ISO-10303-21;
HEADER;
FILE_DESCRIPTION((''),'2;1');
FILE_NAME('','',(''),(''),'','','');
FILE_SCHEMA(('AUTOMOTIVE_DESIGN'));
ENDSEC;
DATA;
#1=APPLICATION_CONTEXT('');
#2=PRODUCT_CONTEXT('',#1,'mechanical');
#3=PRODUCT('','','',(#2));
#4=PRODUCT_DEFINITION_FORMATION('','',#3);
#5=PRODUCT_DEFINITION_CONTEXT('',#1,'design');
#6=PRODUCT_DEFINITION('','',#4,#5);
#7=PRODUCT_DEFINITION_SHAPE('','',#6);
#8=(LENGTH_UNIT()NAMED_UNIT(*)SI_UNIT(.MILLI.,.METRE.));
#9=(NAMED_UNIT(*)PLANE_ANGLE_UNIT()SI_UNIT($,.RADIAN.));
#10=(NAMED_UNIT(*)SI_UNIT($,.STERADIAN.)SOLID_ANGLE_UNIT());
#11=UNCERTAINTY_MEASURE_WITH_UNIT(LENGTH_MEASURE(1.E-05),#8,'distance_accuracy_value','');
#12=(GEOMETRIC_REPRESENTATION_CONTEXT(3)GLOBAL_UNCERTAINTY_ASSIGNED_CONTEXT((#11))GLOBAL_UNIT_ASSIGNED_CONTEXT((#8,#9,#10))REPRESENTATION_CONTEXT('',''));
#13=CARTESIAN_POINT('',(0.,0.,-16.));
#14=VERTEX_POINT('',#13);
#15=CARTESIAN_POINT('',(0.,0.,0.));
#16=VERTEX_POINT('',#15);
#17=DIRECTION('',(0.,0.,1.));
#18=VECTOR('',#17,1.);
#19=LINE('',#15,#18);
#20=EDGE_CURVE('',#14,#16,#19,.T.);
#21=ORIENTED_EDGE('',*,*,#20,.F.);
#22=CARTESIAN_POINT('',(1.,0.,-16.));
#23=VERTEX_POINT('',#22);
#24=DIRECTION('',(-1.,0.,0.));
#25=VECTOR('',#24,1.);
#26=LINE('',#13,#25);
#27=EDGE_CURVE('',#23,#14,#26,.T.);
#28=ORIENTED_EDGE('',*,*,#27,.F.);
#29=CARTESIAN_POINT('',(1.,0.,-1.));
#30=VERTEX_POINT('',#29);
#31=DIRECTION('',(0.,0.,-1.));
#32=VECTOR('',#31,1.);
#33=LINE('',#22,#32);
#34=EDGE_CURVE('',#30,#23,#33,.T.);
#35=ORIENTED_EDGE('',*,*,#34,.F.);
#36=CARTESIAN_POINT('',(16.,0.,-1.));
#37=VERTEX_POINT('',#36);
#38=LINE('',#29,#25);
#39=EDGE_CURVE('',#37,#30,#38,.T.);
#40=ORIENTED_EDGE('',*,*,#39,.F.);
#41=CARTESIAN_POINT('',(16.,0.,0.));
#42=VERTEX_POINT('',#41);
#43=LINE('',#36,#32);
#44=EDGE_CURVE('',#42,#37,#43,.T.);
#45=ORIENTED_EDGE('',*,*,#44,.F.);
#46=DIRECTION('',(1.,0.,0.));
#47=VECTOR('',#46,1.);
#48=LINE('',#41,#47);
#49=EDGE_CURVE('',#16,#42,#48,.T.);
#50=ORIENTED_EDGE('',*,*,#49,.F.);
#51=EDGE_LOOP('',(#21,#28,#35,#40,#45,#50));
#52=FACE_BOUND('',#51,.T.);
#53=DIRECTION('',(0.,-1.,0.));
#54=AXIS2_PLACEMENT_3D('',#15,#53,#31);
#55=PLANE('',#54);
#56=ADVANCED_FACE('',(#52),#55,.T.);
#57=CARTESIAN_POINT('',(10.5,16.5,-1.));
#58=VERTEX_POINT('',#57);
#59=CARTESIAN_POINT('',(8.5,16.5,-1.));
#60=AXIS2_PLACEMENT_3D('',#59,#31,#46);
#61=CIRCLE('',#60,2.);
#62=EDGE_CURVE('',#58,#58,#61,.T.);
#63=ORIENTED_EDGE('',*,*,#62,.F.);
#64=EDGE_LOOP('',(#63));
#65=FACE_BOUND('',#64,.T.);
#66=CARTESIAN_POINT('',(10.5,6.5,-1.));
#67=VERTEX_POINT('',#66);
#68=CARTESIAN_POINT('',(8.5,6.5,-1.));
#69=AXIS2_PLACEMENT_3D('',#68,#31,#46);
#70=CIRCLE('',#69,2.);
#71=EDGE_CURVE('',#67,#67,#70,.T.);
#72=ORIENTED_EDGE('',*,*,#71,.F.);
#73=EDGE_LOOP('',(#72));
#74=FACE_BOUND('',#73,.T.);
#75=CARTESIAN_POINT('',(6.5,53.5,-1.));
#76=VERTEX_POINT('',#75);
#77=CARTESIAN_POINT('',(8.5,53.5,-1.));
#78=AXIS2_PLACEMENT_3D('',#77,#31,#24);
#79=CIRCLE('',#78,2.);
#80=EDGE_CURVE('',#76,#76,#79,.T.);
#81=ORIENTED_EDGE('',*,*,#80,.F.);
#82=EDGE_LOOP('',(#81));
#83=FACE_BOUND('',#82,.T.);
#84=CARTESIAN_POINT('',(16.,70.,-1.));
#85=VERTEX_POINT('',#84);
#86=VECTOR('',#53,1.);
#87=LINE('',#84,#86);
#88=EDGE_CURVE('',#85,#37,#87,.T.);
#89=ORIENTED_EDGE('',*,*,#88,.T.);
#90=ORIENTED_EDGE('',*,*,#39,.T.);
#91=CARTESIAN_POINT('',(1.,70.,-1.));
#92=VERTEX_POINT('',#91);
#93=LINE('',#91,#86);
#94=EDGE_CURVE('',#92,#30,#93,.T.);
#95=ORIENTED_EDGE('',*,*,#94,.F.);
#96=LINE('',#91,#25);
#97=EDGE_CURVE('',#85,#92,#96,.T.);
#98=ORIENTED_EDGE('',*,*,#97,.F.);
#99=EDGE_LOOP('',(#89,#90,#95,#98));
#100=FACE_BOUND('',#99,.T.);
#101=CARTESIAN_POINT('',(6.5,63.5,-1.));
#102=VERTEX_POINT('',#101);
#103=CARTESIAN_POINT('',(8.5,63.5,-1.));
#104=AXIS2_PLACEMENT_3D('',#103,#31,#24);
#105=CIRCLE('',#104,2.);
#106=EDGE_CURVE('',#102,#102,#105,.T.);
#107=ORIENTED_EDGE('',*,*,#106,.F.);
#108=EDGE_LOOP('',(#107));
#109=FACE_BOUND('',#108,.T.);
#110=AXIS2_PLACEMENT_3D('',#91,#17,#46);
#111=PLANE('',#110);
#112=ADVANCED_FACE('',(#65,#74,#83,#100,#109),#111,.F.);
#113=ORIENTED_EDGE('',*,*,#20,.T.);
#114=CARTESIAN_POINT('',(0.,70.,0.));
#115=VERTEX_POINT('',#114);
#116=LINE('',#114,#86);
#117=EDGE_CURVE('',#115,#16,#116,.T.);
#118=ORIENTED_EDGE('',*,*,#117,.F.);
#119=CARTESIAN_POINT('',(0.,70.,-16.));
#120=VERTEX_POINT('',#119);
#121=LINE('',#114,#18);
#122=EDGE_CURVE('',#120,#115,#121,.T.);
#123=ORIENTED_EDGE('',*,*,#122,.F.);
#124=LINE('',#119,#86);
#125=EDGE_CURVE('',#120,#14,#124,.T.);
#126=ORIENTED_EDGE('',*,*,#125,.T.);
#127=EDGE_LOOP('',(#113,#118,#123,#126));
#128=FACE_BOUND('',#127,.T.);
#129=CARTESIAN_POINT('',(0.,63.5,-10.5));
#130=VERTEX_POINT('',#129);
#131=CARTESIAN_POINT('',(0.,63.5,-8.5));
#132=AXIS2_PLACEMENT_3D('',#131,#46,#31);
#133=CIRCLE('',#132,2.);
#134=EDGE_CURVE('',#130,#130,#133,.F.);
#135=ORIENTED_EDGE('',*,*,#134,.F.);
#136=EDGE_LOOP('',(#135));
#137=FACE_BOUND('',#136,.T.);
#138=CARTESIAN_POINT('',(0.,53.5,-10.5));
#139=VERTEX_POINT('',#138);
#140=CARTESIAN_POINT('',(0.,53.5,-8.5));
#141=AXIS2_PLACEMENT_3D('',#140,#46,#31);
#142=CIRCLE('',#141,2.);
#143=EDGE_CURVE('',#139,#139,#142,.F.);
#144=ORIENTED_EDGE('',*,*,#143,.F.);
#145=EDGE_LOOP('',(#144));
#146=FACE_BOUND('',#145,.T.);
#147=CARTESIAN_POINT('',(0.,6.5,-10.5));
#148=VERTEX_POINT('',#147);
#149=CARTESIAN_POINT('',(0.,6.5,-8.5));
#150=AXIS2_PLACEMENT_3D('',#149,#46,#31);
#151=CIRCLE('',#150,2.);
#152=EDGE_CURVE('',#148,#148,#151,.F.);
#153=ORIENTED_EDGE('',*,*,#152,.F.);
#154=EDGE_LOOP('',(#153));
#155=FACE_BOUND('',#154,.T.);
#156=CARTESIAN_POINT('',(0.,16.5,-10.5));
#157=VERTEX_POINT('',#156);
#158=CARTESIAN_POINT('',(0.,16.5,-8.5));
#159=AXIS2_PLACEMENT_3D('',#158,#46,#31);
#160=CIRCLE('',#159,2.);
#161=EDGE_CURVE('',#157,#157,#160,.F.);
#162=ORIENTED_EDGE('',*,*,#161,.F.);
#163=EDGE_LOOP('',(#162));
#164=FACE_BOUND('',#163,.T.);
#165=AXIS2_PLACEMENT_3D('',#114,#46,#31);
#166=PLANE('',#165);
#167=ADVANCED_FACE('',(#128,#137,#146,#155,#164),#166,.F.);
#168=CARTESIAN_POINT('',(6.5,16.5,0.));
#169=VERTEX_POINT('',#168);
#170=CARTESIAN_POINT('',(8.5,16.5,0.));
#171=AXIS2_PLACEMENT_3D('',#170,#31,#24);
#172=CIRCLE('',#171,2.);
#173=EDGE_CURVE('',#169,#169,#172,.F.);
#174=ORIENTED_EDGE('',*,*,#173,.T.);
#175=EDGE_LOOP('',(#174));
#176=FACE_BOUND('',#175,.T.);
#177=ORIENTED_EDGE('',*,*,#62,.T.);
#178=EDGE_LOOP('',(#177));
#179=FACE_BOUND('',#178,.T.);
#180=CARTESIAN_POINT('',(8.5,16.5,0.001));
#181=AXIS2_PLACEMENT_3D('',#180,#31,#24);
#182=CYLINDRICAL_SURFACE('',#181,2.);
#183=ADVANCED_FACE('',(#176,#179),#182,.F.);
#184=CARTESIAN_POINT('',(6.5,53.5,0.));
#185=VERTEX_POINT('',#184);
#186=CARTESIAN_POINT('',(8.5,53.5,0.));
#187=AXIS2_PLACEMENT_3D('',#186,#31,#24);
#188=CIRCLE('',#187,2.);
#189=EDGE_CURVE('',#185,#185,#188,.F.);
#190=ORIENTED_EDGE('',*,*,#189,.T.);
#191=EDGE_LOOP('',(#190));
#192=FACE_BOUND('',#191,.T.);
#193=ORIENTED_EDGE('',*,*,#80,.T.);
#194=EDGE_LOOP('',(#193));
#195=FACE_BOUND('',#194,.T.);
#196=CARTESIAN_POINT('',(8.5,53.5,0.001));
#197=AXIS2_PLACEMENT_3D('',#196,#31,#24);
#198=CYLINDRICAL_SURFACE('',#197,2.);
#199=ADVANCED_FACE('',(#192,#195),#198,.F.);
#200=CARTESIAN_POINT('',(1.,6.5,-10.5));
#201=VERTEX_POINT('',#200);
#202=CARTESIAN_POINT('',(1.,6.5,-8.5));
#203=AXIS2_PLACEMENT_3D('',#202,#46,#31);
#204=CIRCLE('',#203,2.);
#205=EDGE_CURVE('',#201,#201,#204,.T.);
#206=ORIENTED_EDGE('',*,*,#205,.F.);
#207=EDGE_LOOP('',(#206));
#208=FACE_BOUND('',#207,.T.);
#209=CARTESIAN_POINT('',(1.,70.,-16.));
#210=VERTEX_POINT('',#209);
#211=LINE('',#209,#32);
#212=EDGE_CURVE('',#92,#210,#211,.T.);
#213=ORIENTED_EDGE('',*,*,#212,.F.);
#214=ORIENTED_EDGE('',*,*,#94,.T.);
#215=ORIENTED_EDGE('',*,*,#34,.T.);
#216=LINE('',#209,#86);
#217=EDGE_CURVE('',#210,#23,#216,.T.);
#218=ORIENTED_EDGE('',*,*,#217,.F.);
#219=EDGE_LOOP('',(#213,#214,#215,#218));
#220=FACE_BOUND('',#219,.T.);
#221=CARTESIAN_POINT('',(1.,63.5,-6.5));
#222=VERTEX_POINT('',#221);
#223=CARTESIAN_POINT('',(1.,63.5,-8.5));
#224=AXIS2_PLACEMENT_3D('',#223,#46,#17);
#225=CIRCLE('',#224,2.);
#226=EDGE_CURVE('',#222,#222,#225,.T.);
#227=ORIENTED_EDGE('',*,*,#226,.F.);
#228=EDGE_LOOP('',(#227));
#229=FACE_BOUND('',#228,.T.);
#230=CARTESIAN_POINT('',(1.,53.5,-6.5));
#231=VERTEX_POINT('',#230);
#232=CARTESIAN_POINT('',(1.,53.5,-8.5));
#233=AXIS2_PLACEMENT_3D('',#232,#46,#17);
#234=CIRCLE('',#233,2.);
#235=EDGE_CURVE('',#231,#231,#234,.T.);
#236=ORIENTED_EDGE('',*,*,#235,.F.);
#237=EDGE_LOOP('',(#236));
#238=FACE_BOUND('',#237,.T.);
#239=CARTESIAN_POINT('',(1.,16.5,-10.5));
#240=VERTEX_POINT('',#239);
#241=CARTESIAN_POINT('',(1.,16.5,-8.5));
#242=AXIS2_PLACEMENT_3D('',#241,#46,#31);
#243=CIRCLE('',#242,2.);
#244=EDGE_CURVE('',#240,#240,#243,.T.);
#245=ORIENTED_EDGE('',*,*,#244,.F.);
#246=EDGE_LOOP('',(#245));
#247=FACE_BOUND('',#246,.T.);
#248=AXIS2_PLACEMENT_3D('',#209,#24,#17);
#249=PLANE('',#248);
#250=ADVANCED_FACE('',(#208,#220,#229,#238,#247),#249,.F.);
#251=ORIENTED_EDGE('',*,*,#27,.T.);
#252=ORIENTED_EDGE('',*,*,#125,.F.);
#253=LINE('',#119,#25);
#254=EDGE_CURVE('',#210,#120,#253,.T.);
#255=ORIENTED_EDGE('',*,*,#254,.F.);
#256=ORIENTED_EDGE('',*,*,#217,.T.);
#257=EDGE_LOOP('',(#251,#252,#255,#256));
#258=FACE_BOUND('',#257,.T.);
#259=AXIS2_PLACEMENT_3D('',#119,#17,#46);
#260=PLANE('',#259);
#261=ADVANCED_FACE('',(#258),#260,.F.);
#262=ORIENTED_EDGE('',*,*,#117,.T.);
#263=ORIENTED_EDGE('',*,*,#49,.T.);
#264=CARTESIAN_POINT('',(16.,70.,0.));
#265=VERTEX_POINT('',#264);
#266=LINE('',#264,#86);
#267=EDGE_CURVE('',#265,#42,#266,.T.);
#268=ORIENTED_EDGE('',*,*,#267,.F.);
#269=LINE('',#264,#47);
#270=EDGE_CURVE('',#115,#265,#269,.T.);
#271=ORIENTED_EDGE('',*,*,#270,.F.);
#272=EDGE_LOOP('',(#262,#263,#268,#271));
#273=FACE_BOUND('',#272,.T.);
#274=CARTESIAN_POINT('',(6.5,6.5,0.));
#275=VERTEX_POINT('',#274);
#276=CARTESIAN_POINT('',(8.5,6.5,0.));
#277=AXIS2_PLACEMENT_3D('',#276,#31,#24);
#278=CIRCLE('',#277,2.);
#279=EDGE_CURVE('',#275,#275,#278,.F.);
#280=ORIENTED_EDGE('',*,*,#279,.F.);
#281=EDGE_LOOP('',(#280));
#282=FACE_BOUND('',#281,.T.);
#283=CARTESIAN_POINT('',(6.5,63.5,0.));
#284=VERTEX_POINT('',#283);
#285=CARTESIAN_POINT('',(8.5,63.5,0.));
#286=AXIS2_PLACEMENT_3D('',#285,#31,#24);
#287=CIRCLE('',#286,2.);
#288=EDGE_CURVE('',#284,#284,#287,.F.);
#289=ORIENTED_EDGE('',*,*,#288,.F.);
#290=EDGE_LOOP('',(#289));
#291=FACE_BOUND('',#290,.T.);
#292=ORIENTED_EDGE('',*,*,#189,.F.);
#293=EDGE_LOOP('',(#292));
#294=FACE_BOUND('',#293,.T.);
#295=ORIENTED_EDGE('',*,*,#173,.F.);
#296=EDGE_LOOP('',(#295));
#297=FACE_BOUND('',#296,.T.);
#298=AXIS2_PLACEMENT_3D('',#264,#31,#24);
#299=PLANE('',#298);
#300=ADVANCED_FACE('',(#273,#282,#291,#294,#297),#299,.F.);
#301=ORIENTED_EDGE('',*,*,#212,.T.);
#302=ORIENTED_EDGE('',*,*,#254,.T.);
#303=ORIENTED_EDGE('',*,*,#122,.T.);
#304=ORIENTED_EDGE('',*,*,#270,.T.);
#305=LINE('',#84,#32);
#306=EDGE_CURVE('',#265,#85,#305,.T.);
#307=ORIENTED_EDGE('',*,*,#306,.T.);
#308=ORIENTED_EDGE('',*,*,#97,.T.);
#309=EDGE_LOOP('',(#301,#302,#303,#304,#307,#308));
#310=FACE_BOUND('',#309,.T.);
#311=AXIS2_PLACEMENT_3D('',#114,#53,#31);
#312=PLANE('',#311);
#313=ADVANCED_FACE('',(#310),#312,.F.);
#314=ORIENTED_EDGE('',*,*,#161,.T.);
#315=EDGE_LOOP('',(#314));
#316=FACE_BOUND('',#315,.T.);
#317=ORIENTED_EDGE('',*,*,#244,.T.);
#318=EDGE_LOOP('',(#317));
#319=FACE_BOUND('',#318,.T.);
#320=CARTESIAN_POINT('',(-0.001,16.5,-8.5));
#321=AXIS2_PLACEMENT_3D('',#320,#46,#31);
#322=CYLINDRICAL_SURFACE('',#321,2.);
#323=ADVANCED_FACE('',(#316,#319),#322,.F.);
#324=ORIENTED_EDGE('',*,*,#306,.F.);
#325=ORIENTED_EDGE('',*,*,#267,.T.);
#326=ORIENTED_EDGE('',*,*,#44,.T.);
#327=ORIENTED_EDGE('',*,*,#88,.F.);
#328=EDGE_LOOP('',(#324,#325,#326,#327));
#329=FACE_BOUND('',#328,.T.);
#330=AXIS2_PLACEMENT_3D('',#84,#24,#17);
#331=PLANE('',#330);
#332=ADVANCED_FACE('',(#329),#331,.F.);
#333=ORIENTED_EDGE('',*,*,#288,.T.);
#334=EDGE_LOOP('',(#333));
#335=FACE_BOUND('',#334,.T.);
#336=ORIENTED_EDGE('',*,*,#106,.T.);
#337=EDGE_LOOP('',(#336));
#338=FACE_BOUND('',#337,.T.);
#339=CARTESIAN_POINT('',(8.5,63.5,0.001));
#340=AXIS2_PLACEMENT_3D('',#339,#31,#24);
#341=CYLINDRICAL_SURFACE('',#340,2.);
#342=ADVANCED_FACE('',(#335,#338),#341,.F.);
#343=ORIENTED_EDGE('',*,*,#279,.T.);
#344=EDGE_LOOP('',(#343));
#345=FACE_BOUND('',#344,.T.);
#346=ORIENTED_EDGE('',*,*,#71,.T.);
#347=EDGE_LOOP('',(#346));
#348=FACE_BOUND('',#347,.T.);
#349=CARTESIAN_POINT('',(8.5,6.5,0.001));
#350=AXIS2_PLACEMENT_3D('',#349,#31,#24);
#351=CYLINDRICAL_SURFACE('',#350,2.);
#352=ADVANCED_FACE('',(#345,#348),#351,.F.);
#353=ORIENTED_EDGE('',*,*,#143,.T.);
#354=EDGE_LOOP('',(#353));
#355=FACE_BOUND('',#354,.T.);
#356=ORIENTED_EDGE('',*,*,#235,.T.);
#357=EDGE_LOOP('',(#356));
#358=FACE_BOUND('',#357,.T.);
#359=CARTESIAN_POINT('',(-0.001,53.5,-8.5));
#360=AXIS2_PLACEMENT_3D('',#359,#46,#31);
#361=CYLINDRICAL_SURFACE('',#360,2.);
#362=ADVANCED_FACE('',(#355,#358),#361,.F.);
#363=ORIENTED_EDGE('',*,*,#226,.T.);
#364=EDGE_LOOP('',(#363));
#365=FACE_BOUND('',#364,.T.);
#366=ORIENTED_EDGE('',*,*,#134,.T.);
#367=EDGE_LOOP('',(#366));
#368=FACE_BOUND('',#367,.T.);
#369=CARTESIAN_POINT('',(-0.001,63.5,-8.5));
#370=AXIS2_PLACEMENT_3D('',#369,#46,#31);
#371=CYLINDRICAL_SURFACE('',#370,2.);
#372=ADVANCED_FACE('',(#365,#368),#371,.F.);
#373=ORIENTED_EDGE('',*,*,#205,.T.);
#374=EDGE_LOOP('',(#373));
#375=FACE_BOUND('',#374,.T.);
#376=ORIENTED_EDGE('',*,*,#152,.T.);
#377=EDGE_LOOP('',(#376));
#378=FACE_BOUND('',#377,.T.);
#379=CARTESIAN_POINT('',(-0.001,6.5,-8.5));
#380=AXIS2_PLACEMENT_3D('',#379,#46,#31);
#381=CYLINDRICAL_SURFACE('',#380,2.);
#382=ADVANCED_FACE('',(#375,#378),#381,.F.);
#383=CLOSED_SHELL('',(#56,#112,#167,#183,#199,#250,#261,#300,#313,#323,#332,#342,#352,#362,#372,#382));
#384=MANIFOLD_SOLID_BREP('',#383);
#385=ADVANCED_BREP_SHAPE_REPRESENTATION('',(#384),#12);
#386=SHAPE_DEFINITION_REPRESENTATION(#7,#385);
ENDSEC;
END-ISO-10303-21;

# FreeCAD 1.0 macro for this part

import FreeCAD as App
import Part
import Sketcher
Q = App.Units.Quantity

doc = App.newDocument("Part")
body = doc.addObject("PartDesign::Body", "Body")

# Sketch on XZ plane
sketch1 = doc.addObject("Sketcher::SketchObject", "Sketch")
body.addObject(sketch1)
sketch1.AttachmentSupport = (doc.XZ_Plane, [""])
sketch1.MapMode = "FlatFace"
sketch1.addGeometry(Part.LineSegment(App.Vector(0, -16, 0), App.Vector(0, 0, 0)), False)
sketch1.addGeometry(Part.LineSegment(App.Vector(0, 0, 0), App.Vector(16, 0, 0)), False)
sketch1.addGeometry(Part.LineSegment(App.Vector(16, 0, 0), App.Vector(16, -1, 0)), False)
sketch1.addGeometry(Part.LineSegment(App.Vector(16, -1, 0), App.Vector(1, -1, 0)), False)
sketch1.addGeometry(Part.LineSegment(App.Vector(1, -1, 0), App.Vector(1, -16, 0)), False)
sketch1.addGeometry(Part.LineSegment(App.Vector(1, -16, 0), App.Vector(0, -16, 0)), False)
sketch1.addConstraint(Sketcher.Constraint("Coincident", 0, 2, 1, 1))
sketch1.addConstraint(Sketcher.Constraint("Coincident", 1, 2, 2, 1))
sketch1.addConstraint(Sketcher.Constraint("Coincident", 2, 2, 3, 1))
sketch1.addConstraint(Sketcher.Constraint("Coincident", 3, 2, 4, 1))
sketch1.addConstraint(Sketcher.Constraint("Coincident", 4, 2, 5, 1))
sketch1.addConstraint(Sketcher.Constraint("Coincident", 5, 2, 0, 1))
sketch1.addConstraint(Sketcher.Constraint("Vertical", 0))
sketch1.addConstraint(Sketcher.Constraint("Horizontal", 1))
sketch1.addConstraint(Sketcher.Constraint("Vertical", 2))
sketch1.addConstraint(Sketcher.Constraint("Horizontal", 3))
sketch1.addConstraint(Sketcher.Constraint("Vertical", 4))
sketch1.addConstraint(Sketcher.Constraint("Horizontal", 5))
sketch1.addConstraint(Sketcher.Constraint("Coincident", 0, 2, -1, 1))
sketch1.addConstraint(Sketcher.Constraint("Equal", 1, 0))
sketch1.addConstraint(Sketcher.Constraint("Equal", 5, 2))
sketch1.addConstraint(Sketcher.Constraint("DistanceX", 1, 1, 1, 2, Q("16 mm")))
sketch1.addConstraint(Sketcher.Constraint("DistanceX", 3, 2, 3, 1, Q("15 mm")))
pad1 = doc.addObject("PartDesign::Pad", "Pad")
body.addObject(pad1)
pad1.Profile = sketch1
pad1.Length = 70
pad1.Reversed = True

# Sketch on YZ plane
sketch2 = doc.addObject("Sketcher::SketchObject", "Sketch001")
body.addObject(sketch2)
sketch2.AttachmentSupport = (doc.YZ_Plane, [""])
sketch2.MapMode = "FlatFace"
sketch2.AttachmentOffset = App.Placement(App.Vector(0, 0, 1), App.Rotation())
sketch2.addGeometry(Part.Circle(App.Vector(16.5, -8.5, 0), App.Vector(0, 0, 1), 2), False)
sketch2.addConstraint(Sketcher.Constraint("Diameter", 0, Q("4 mm")))
sketch2.addConstraint(Sketcher.Constraint("DistanceX", -1, 1, 0, 3, Q("16.5 mm")))
sketch2.addConstraint(Sketcher.Constraint("DistanceY", 0, 3, -1, 1, Q("8.5 mm")))
pocket1 = doc.addObject("PartDesign::Pocket", "Pocket")
body.addObject(pocket1)
pocket1.Profile = sketch2
pocket1.Type = "UpToFirst"

# Sketch on YZ plane
sketch3 = doc.addObject("Sketcher::SketchObject", "Sketch002")
body.addObject(sketch3)
sketch3.AttachmentSupport = (doc.YZ_Plane, [""])
sketch3.MapMode = "FlatFace"
sketch3.AttachmentOffset = App.Placement(App.Vector(0, 0, 1), App.Rotation())
sketch3.addGeometry(Part.Circle(App.Vector(6.5, -8.5, 0), App.Vector(0, 0, 1), 2), False)
sketch3.addConstraint(Sketcher.Constraint("Diameter", 0, Q("4 mm")))
sketch3.addConstraint(Sketcher.Constraint("DistanceX", -1, 1, 0, 3, Q("6.5 mm")))
sketch3.addConstraint(Sketcher.Constraint("DistanceY", 0, 3, -1, 1, Q("8.5 mm")))
pocket2 = doc.addObject("PartDesign::Pocket", "Pocket001")
body.addObject(pocket2)
pocket2.Profile = sketch3
pocket2.Type = "UpToFirst"

# Sketch on YZ plane
sketch4 = doc.addObject("Sketcher::SketchObject", "Sketch003")
body.addObject(sketch4)
sketch4.AttachmentSupport = (doc.YZ_Plane, [""])
sketch4.MapMode = "FlatFace"
sketch4.AttachmentOffset = App.Placement(App.Vector(0, 0, 1), App.Rotation())
sketch4.addGeometry(Part.Circle(App.Vector(53.5, -8.5, 0), App.Vector(0, 0, 1), 2), False)
sketch4.addConstraint(Sketcher.Constraint("Diameter", 0, Q("4 mm")))
sketch4.addConstraint(Sketcher.Constraint("DistanceX", -1, 1, 0, 3, Q("53.5 mm")))
sketch4.addConstraint(Sketcher.Constraint("DistanceY", 0, 3, -1, 1, Q("8.5 mm")))
pocket3 = doc.addObject("PartDesign::Pocket", "Pocket002")
body.addObject(pocket3)
pocket3.Profile = sketch4
pocket3.Type = "UpToFirst"

# Sketch on YZ plane
sketch5 = doc.addObject("Sketcher::SketchObject", "Sketch004")
body.addObject(sketch5)
sketch5.AttachmentSupport = (doc.YZ_Plane, [""])
sketch5.MapMode = "FlatFace"
sketch5.AttachmentOffset = App.Placement(App.Vector(0, 0, 1), App.Rotation())
sketch5.addGeometry(Part.Circle(App.Vector(63.5, -8.5, 0), App.Vector(0, 0, 1), 2), False)
sketch5.addConstraint(Sketcher.Constraint("Diameter", 0, Q("4 mm")))
sketch5.addConstraint(Sketcher.Constraint("DistanceX", -1, 1, 0, 3, Q("63.5 mm")))
sketch5.addConstraint(Sketcher.Constraint("DistanceY", 0, 3, -1, 1, Q("8.5 mm")))
pocket4 = doc.addObject("PartDesign::Pocket", "Pocket003")
body.addObject(pocket4)
pocket4.Profile = sketch5
pocket4.Type = "UpToFirst"

# Sketch on XY plane
sketch6 = doc.addObject("Sketcher::SketchObject", "Sketch005")
body.addObject(sketch6)
sketch6.AttachmentSupport = (doc.XY_Plane, [""])
sketch6.MapMode = "FlatFace"
sketch6.AttachmentOffset = App.Placement(App.Vector(0, 0, -1), App.Rotation())
sketch6.addGeometry(Part.Circle(App.Vector(8.5, 53.5, 0), App.Vector(0, 0, 1), 2), False)
sketch6.addConstraint(Sketcher.Constraint("Diameter", 0, Q("4 mm")))
sketch6.addConstraint(Sketcher.Constraint("DistanceX", -1, 1, 0, 3, Q("8.5 mm")))
sketch6.addConstraint(Sketcher.Constraint("DistanceY", -1, 1, 0, 3, Q("53.5 mm")))
pocket5 = doc.addObject("PartDesign::Pocket", "Pocket004")
body.addObject(pocket5)
pocket5.Profile = sketch6
pocket5.Type = "UpToFirst"
pocket5.Reversed = True

# Sketch on XY plane
sketch7 = doc.addObject("Sketcher::SketchObject", "Sketch006")
body.addObject(sketch7)
sketch7.AttachmentSupport = (doc.XY_Plane, [""])
sketch7.MapMode = "FlatFace"
sketch7.AttachmentOffset = App.Placement(App.Vector(0, 0, -1), App.Rotation())
sketch7.addGeometry(Part.Circle(App.Vector(8.5, 63.5, 0), App.Vector(0, 0, 1), 2), False)
sketch7.addConstraint(Sketcher.Constraint("Diameter", 0, Q("4 mm")))
sketch7.addConstraint(Sketcher.Constraint("DistanceX", -1, 1, 0, 3, Q("8.5 mm")))
sketch7.addConstraint(Sketcher.Constraint("DistanceY", -1, 1, 0, 3, Q("63.5 mm")))
pocket6 = doc.addObject("PartDesign::Pocket", "Pocket005")
body.addObject(pocket6)
pocket6.Profile = sketch7
pocket6.Type = "UpToFirst"
pocket6.Reversed = True

# Sketch on XY plane
sketch8 = doc.addObject("Sketcher::SketchObject", "Sketch007")
body.addObject(sketch8)
sketch8.AttachmentSupport = (doc.XY_Plane, [""])
sketch8.MapMode = "FlatFace"
sketch8.AttachmentOffset = App.Placement(App.Vector(0, 0, -1), App.Rotation())
sketch8.addGeometry(Part.Circle(App.Vector(8.5, 6.5, 0), App.Vector(0, 0, 1), 2), False)
sketch8.addConstraint(Sketcher.Constraint("Diameter", 0, Q("4 mm")))
sketch8.addConstraint(Sketcher.Constraint("DistanceX", -1, 1, 0, 3, Q("8.5 mm")))
sketch8.addConstraint(Sketcher.Constraint("DistanceY", -1, 1, 0, 3, Q("6.5 mm")))
pocket7 = doc.addObject("PartDesign::Pocket", "Pocket006")
body.addObject(pocket7)
pocket7.Profile = sketch8
pocket7.Type = "UpToFirst"
pocket7.Reversed = True

# Sketch on XY plane
sketch9 = doc.addObject("Sketcher::SketchObject", "Sketch008")
body.addObject(sketch9)
sketch9.AttachmentSupport = (doc.XY_Plane, [""])
sketch9.MapMode = "FlatFace"
sketch9.AttachmentOffset = App.Placement(App.Vector(0, 0, -1), App.Rotation())
sketch9.addGeometry(Part.Circle(App.Vector(8.5, 16.5, 0), App.Vector(0, 0, 1), 2), False)
sketch9.addConstraint(Sketcher.Constraint("Diameter", 0, Q("4 mm")))
sketch9.addConstraint(Sketcher.Constraint("DistanceX", -1, 1, 0, 3, Q("8.5 mm")))
sketch9.addConstraint(Sketcher.Constraint("DistanceY", -1, 1, 0, 3, Q("16.5 mm")))
pocket8 = doc.addObject("PartDesign::Pocket", "Pocket007")
body.addObject(pocket8)
pocket8.Profile = sketch9
pocket8.Type = "UpToFirst"
pocket8.Reversed = True

doc.recompute()
